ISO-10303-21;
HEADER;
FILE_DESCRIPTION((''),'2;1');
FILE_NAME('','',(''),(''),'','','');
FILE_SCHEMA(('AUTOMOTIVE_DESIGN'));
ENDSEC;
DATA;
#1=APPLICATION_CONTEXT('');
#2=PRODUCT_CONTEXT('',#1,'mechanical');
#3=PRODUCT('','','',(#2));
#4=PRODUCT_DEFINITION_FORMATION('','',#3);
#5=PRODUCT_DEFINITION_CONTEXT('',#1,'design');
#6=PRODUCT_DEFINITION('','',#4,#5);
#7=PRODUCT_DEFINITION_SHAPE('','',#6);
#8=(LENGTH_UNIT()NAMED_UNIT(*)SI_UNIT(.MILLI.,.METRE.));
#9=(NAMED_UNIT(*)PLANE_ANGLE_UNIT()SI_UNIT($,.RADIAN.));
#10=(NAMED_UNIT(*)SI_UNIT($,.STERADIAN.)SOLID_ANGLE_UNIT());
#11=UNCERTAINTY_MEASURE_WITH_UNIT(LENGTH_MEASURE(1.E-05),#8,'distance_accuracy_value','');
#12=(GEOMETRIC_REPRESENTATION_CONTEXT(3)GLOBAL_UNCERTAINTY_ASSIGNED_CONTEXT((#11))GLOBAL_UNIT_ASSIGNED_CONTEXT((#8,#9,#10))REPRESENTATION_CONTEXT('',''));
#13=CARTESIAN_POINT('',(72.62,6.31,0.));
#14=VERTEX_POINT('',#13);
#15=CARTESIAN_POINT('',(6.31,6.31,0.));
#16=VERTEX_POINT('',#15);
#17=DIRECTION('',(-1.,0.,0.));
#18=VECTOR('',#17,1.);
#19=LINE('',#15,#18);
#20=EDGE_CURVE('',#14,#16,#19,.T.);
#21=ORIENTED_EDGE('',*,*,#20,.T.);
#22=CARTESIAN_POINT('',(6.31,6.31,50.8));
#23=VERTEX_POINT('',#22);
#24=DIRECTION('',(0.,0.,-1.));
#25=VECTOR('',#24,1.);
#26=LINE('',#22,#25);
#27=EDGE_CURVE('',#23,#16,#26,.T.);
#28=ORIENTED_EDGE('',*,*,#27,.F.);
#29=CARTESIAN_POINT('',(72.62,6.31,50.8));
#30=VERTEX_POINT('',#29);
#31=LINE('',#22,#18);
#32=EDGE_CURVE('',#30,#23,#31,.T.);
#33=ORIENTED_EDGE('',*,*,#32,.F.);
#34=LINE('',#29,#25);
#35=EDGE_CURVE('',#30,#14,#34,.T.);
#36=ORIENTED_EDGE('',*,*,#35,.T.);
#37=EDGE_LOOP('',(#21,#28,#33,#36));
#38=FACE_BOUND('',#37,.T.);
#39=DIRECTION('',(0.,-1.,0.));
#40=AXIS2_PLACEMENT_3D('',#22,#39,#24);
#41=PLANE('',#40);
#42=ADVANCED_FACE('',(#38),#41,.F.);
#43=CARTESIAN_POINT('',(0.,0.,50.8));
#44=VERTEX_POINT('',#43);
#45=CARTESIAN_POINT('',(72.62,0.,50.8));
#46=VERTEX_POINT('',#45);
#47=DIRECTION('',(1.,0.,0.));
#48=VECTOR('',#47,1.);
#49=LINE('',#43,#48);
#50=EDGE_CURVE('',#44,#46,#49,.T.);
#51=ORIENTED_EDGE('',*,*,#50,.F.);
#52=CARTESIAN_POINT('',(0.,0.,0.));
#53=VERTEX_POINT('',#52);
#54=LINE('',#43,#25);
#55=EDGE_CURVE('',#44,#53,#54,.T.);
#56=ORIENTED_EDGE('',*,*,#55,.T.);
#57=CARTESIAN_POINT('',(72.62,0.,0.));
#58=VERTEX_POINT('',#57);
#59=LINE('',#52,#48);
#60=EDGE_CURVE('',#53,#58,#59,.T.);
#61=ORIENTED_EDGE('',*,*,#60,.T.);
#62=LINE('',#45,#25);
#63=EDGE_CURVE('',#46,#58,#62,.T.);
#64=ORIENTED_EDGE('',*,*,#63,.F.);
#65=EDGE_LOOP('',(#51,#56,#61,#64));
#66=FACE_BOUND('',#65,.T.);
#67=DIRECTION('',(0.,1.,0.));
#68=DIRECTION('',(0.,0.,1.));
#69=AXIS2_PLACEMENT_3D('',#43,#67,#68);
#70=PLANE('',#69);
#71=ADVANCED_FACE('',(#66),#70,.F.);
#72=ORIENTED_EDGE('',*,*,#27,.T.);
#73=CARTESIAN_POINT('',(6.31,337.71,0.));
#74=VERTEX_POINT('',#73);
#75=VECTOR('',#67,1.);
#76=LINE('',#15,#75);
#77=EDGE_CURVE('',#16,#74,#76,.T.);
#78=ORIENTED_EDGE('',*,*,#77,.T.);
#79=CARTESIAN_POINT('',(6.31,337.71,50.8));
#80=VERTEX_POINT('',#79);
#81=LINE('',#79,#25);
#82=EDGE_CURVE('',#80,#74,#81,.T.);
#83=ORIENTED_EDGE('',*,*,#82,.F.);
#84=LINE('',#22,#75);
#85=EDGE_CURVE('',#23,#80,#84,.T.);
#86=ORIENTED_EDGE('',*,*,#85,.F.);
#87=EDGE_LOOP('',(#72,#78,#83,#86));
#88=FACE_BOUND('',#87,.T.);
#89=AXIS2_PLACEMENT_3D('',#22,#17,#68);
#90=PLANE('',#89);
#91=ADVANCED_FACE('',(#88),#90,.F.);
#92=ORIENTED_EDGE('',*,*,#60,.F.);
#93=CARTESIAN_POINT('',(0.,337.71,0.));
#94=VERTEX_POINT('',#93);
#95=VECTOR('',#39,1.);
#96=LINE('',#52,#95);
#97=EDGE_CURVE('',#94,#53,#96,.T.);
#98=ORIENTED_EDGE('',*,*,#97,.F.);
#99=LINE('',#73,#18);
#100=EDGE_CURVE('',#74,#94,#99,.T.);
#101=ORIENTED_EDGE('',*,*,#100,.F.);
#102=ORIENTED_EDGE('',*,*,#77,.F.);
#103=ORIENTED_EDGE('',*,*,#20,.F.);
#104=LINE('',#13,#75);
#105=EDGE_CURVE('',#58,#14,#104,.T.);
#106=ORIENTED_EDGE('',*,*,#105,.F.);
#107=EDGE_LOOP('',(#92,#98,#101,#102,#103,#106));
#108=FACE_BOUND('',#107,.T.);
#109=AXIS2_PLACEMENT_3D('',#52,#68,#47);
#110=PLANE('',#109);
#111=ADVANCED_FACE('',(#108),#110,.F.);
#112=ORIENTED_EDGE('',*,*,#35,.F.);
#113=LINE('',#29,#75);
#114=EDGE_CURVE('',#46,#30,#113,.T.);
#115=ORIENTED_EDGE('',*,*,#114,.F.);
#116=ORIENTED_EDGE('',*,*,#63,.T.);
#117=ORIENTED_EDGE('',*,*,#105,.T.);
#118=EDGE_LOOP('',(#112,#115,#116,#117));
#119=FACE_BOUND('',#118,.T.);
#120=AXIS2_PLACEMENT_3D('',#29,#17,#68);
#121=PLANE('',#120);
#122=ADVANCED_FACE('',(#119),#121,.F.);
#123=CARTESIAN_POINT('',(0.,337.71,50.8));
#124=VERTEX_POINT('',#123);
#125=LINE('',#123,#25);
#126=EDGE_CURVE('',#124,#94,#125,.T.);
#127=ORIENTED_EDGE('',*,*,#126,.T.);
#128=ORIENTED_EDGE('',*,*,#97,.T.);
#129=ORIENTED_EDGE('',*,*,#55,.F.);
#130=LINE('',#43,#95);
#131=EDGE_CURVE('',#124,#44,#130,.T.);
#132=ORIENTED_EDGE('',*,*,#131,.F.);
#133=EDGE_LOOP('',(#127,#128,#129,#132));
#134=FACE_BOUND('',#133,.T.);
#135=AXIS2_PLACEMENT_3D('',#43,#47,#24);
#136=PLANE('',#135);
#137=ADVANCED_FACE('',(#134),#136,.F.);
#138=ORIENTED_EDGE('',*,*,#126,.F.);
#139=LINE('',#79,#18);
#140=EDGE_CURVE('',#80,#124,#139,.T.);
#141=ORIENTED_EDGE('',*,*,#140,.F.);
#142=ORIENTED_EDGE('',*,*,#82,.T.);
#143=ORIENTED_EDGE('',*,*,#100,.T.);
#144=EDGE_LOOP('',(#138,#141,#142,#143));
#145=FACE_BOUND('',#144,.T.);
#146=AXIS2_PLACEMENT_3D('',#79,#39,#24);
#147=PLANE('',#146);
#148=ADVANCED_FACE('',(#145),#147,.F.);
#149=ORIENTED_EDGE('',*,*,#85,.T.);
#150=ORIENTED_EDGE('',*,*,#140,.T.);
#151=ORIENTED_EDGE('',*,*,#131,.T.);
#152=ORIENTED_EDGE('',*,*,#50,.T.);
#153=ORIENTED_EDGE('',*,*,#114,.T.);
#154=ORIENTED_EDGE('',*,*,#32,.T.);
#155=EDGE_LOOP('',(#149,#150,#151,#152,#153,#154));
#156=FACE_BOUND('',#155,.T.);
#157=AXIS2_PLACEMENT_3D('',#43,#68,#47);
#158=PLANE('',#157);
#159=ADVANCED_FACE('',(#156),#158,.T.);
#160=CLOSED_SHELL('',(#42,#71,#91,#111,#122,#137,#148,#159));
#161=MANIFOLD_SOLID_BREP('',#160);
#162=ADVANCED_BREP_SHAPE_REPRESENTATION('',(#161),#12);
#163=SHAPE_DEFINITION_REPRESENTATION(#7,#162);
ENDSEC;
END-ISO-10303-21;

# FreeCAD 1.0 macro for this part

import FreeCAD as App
import Part
import Sketcher
from FreeCAD import Vector
Q = App.Units.Quantity

doc = App.newDocument("Part")
body = doc.addObject("PartDesign::Body", "Body")

sketch1 = body.newObject("Sketcher::SketchObject", "Sketch")
sketch1.AttachmentSupport = (doc.getObject("XY_Plane"), [""])
sketch1.MapMode = "FlatFace"
sketch1.addGeometry(Part.LineSegment(Vector(0, 0, 0), Vector(73, 0, 0)), False)
sketch1.addGeometry(Part.LineSegment(Vector(73, 0, 0), Vector(73, 6, 0)), False)
sketch1.addGeometry(Part.LineSegment(Vector(73, 6, 0), Vector(6, 6, 0)), False)
sketch1.addGeometry(Part.LineSegment(Vector(6, 6, 0), Vector(6, 338, 0)), False)
sketch1.addGeometry(Part.LineSegment(Vector(6, 338, 0), Vector(0, 338, 0)), False)
sketch1.addGeometry(Part.LineSegment(Vector(0, 338, 0), Vector(0, 0, 0)), False)
sketch1.addConstraint(Sketcher.Constraint("Coincident", 0, 2, 1, 1))
sketch1.addConstraint(Sketcher.Constraint("Coincident", 1, 2, 2, 1))
sketch1.addConstraint(Sketcher.Constraint("Coincident", 2, 2, 3, 1))
sketch1.addConstraint(Sketcher.Constraint("Coincident", 3, 2, 4, 1))
sketch1.addConstraint(Sketcher.Constraint("Coincident", 4, 2, 5, 1))
sketch1.addConstraint(Sketcher.Constraint("Coincident", 5, 2, 0, 1))
sketch1.addConstraint(Sketcher.Constraint("Horizontal", 0))
sketch1.addConstraint(Sketcher.Constraint("Vertical", 1))
sketch1.addConstraint(Sketcher.Constraint("Horizontal", 2))
sketch1.addConstraint(Sketcher.Constraint("Vertical", 3))
sketch1.addConstraint(Sketcher.Constraint("Horizontal", 4))
sketch1.addConstraint(Sketcher.Constraint("Vertical", 5))
sketch1.addConstraint(Sketcher.Constraint("Coincident", 5, 2, -1, 1))
sketch1.addConstraint(Sketcher.Constraint("Equal", 4, 1))
sketch1.addConstraint(Sketcher.Constraint("DistanceY", 3, 1, 3, 2, Q("331.4 mm")))
sketch1.addConstraint(Sketcher.Constraint("DistanceX", 0, 1, 0, 2, Q("72.62 mm")))
sketch1.addConstraint(Sketcher.Constraint("DistanceX", 2, 2, 2, 1, Q("66.31 mm")))
pad1 = body.newObject("PartDesign::Pad", "Pad")
pad1.Profile = sketch1
pad1.Length = 50.8

doc.recompute()
